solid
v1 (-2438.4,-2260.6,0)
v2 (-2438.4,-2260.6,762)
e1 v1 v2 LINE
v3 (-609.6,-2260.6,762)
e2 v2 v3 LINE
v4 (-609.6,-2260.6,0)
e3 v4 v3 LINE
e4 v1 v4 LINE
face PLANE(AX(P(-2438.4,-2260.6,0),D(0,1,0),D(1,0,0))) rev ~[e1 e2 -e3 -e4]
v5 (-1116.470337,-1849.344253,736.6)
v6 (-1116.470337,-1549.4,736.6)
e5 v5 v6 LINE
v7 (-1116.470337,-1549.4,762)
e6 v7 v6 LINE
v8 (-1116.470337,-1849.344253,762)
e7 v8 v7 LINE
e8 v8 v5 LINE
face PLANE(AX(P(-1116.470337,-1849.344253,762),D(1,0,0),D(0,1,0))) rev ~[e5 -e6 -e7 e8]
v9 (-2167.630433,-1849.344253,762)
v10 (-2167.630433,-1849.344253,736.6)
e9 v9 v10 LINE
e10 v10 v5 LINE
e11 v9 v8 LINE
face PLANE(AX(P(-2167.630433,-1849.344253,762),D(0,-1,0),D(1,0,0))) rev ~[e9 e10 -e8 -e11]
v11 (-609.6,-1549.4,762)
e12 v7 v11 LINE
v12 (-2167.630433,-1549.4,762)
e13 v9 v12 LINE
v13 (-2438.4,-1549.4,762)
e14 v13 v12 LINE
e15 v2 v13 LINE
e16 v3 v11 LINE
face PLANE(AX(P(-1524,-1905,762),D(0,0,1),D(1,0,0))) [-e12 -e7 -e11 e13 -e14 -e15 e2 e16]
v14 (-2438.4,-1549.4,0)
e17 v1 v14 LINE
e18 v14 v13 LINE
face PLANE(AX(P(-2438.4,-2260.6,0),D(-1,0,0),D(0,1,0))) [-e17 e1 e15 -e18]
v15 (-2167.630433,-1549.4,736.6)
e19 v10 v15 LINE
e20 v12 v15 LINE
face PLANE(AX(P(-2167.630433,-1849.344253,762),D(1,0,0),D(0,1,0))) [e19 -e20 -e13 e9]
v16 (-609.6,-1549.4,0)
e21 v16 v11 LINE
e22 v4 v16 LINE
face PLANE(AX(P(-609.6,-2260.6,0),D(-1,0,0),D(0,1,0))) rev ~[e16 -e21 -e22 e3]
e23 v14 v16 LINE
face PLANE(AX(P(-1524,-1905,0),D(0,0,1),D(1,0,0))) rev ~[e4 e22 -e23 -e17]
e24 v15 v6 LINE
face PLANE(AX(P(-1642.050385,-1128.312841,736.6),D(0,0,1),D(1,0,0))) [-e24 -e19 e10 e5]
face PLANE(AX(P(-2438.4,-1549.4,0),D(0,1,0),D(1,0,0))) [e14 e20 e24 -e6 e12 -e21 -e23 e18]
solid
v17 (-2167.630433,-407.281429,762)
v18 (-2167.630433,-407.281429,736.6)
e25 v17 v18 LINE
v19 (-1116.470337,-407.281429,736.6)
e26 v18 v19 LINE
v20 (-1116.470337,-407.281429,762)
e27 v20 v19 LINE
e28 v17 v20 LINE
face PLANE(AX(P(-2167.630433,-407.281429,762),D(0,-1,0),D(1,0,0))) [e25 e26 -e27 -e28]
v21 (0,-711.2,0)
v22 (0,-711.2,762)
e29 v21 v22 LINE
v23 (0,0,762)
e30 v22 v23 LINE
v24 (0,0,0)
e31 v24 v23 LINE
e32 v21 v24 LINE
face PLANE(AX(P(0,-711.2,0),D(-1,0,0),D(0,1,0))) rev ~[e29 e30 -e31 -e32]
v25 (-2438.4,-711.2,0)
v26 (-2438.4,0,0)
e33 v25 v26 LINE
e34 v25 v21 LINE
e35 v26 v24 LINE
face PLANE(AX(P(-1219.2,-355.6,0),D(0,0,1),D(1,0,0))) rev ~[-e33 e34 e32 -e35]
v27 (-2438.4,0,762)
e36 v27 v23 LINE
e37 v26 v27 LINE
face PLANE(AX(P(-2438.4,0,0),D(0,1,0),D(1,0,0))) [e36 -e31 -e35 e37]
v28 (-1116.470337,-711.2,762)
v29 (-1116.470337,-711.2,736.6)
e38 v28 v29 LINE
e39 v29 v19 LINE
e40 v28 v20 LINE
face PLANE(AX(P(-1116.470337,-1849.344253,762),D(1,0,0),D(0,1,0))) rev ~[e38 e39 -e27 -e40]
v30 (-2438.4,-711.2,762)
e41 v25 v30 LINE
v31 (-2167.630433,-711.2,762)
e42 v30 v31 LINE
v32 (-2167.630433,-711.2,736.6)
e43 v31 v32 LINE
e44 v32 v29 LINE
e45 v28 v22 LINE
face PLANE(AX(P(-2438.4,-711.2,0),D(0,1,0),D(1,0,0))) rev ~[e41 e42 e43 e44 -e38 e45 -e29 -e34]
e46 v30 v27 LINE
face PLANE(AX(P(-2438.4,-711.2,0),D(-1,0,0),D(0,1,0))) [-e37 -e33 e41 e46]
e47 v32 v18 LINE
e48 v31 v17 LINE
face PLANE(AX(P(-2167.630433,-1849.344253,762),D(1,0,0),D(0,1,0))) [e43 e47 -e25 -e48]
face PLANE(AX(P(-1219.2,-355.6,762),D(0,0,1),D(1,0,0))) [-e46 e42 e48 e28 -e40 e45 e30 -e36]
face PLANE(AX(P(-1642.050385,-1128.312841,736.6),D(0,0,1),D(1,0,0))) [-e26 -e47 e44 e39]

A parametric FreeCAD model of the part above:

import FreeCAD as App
import Part
import Sketcher
Q = App.Units.Quantity


def add_polygon(sketch, points):
    """Adds a closed chain of lines whose ends are joined by coincident constraints."""
    first, n = sketch.GeometryCount, len(points)
    for a, b in zip(points, points[1:] + points[:1]):
        sketch.addGeometry(Part.LineSegment(App.Vector(*a, 0), App.Vector(*b, 0)), False)
    for i in range(n):
        sketch.addConstraint(Sketcher.Constraint("Coincident", first + i, 2, first + (i + 1) % n, 1))

doc = App.newDocument("Part")
body = doc.addObject("PartDesign::Body", "Body")
body.AllowCompound = True

sketch1 = body.newObject("Sketcher::SketchObject", "Sketch")
sketch1.AttachmentSupport = (doc.getObject("XY_Plane"), [""])
sketch1.MapMode = "FlatFace"
add_polygon(sketch1, [(-2438.4, 0), (-2438.4, -711.2), (0, -711.2), (0, 0)])
add_polygon(sketch1, [(-2438.4, -1549.4), (-2438.4, -2260.6), (-609.6, -2260.6), (-609.6, -1549.4)])
sketch1.addConstraint(Sketcher.Constraint("Vertical", 0))
sketch1.addConstraint(Sketcher.Constraint("Horizontal", 1))
sketch1.addConstraint(Sketcher.Constraint("Vertical", 2))
sketch1.addConstraint(Sketcher.Constraint("Horizontal", 3))
sketch1.addConstraint(Sketcher.Constraint("Vertical", 4))
sketch1.addConstraint(Sketcher.Constraint("Horizontal", 5))
sketch1.addConstraint(Sketcher.Constraint("Vertical", 6))
sketch1.addConstraint(Sketcher.Constraint("Horizontal", 7))
sketch1.addConstraint(Sketcher.Constraint("Coincident", 2, 2, -1, 1))
sketch1.addConstraint(Sketcher.Constraint("Vertical", 3, 2, 4, 2))
sketch1.addConstraint(Sketcher.Constraint("Equal", 2, 4))
sketch1.addConstraint(Sketcher.Constraint("DistanceX", 1, 1, 1, 2, Q("96 in")))
sketch1.addConstraint(Sketcher.Constraint("DistanceX", 5, 1, 5, 2, Q("72 in")))
sketch1.addConstraint(Sketcher.Constraint("DistanceY", 0, 2, 0, 1, Q("28 in")))
sketch1.addConstraint(Sketcher.Constraint("DistanceY", 4, 2, -1, 1, Q("89 in")))
pad1 = body.newObject("PartDesign::Pad", "Pad")
pad1.Profile = sketch1
pad1.Length = Q("30 in")

sketch2 = body.newObject("Sketcher::SketchObject", "Sketch001")
sketch2.AttachmentSupport = (doc.getObject("XY_Plane"), [""])
sketch2.MapMode = "FlatFace"
sketch2.AttachmentOffset = App.Placement(App.Vector(0, 0, 30 * 25.4), App.Rotation())
add_polygon(sketch2, [(-2167.630433, -407.281429), (-2167.630433, -1849.344253), (-1116.470337, -1849.344253), (-1116.470337, -407.281429)])
sketch2.addConstraint(Sketcher.Constraint("Vertical", 0))
sketch2.addConstraint(Sketcher.Constraint("Horizontal", 1))
sketch2.addConstraint(Sketcher.Constraint("Vertical", 2))
sketch2.addConstraint(Sketcher.Constraint("Horizontal", 3))
sketch2.addConstraint(Sketcher.Constraint("DistanceX", 1, 1, 1, 2, 1051.160097))
sketch2.addConstraint(Sketcher.Constraint("DistanceY", 0, 2, 0, 1, 1442.062825))
sketch2.addConstraint(Sketcher.Constraint("DistanceY", 2, 2, -1, 1, 407.281429))
sketch2.addConstraint(Sketcher.Constraint("DistanceX", 0, 2, -1, 1, 2167.630433))
pocket1 = body.newObject("PartDesign::Pocket", "Pocket")
pocket1.Profile = sketch2
pocket1.Length = Q("1 in")

doc.recompute()
